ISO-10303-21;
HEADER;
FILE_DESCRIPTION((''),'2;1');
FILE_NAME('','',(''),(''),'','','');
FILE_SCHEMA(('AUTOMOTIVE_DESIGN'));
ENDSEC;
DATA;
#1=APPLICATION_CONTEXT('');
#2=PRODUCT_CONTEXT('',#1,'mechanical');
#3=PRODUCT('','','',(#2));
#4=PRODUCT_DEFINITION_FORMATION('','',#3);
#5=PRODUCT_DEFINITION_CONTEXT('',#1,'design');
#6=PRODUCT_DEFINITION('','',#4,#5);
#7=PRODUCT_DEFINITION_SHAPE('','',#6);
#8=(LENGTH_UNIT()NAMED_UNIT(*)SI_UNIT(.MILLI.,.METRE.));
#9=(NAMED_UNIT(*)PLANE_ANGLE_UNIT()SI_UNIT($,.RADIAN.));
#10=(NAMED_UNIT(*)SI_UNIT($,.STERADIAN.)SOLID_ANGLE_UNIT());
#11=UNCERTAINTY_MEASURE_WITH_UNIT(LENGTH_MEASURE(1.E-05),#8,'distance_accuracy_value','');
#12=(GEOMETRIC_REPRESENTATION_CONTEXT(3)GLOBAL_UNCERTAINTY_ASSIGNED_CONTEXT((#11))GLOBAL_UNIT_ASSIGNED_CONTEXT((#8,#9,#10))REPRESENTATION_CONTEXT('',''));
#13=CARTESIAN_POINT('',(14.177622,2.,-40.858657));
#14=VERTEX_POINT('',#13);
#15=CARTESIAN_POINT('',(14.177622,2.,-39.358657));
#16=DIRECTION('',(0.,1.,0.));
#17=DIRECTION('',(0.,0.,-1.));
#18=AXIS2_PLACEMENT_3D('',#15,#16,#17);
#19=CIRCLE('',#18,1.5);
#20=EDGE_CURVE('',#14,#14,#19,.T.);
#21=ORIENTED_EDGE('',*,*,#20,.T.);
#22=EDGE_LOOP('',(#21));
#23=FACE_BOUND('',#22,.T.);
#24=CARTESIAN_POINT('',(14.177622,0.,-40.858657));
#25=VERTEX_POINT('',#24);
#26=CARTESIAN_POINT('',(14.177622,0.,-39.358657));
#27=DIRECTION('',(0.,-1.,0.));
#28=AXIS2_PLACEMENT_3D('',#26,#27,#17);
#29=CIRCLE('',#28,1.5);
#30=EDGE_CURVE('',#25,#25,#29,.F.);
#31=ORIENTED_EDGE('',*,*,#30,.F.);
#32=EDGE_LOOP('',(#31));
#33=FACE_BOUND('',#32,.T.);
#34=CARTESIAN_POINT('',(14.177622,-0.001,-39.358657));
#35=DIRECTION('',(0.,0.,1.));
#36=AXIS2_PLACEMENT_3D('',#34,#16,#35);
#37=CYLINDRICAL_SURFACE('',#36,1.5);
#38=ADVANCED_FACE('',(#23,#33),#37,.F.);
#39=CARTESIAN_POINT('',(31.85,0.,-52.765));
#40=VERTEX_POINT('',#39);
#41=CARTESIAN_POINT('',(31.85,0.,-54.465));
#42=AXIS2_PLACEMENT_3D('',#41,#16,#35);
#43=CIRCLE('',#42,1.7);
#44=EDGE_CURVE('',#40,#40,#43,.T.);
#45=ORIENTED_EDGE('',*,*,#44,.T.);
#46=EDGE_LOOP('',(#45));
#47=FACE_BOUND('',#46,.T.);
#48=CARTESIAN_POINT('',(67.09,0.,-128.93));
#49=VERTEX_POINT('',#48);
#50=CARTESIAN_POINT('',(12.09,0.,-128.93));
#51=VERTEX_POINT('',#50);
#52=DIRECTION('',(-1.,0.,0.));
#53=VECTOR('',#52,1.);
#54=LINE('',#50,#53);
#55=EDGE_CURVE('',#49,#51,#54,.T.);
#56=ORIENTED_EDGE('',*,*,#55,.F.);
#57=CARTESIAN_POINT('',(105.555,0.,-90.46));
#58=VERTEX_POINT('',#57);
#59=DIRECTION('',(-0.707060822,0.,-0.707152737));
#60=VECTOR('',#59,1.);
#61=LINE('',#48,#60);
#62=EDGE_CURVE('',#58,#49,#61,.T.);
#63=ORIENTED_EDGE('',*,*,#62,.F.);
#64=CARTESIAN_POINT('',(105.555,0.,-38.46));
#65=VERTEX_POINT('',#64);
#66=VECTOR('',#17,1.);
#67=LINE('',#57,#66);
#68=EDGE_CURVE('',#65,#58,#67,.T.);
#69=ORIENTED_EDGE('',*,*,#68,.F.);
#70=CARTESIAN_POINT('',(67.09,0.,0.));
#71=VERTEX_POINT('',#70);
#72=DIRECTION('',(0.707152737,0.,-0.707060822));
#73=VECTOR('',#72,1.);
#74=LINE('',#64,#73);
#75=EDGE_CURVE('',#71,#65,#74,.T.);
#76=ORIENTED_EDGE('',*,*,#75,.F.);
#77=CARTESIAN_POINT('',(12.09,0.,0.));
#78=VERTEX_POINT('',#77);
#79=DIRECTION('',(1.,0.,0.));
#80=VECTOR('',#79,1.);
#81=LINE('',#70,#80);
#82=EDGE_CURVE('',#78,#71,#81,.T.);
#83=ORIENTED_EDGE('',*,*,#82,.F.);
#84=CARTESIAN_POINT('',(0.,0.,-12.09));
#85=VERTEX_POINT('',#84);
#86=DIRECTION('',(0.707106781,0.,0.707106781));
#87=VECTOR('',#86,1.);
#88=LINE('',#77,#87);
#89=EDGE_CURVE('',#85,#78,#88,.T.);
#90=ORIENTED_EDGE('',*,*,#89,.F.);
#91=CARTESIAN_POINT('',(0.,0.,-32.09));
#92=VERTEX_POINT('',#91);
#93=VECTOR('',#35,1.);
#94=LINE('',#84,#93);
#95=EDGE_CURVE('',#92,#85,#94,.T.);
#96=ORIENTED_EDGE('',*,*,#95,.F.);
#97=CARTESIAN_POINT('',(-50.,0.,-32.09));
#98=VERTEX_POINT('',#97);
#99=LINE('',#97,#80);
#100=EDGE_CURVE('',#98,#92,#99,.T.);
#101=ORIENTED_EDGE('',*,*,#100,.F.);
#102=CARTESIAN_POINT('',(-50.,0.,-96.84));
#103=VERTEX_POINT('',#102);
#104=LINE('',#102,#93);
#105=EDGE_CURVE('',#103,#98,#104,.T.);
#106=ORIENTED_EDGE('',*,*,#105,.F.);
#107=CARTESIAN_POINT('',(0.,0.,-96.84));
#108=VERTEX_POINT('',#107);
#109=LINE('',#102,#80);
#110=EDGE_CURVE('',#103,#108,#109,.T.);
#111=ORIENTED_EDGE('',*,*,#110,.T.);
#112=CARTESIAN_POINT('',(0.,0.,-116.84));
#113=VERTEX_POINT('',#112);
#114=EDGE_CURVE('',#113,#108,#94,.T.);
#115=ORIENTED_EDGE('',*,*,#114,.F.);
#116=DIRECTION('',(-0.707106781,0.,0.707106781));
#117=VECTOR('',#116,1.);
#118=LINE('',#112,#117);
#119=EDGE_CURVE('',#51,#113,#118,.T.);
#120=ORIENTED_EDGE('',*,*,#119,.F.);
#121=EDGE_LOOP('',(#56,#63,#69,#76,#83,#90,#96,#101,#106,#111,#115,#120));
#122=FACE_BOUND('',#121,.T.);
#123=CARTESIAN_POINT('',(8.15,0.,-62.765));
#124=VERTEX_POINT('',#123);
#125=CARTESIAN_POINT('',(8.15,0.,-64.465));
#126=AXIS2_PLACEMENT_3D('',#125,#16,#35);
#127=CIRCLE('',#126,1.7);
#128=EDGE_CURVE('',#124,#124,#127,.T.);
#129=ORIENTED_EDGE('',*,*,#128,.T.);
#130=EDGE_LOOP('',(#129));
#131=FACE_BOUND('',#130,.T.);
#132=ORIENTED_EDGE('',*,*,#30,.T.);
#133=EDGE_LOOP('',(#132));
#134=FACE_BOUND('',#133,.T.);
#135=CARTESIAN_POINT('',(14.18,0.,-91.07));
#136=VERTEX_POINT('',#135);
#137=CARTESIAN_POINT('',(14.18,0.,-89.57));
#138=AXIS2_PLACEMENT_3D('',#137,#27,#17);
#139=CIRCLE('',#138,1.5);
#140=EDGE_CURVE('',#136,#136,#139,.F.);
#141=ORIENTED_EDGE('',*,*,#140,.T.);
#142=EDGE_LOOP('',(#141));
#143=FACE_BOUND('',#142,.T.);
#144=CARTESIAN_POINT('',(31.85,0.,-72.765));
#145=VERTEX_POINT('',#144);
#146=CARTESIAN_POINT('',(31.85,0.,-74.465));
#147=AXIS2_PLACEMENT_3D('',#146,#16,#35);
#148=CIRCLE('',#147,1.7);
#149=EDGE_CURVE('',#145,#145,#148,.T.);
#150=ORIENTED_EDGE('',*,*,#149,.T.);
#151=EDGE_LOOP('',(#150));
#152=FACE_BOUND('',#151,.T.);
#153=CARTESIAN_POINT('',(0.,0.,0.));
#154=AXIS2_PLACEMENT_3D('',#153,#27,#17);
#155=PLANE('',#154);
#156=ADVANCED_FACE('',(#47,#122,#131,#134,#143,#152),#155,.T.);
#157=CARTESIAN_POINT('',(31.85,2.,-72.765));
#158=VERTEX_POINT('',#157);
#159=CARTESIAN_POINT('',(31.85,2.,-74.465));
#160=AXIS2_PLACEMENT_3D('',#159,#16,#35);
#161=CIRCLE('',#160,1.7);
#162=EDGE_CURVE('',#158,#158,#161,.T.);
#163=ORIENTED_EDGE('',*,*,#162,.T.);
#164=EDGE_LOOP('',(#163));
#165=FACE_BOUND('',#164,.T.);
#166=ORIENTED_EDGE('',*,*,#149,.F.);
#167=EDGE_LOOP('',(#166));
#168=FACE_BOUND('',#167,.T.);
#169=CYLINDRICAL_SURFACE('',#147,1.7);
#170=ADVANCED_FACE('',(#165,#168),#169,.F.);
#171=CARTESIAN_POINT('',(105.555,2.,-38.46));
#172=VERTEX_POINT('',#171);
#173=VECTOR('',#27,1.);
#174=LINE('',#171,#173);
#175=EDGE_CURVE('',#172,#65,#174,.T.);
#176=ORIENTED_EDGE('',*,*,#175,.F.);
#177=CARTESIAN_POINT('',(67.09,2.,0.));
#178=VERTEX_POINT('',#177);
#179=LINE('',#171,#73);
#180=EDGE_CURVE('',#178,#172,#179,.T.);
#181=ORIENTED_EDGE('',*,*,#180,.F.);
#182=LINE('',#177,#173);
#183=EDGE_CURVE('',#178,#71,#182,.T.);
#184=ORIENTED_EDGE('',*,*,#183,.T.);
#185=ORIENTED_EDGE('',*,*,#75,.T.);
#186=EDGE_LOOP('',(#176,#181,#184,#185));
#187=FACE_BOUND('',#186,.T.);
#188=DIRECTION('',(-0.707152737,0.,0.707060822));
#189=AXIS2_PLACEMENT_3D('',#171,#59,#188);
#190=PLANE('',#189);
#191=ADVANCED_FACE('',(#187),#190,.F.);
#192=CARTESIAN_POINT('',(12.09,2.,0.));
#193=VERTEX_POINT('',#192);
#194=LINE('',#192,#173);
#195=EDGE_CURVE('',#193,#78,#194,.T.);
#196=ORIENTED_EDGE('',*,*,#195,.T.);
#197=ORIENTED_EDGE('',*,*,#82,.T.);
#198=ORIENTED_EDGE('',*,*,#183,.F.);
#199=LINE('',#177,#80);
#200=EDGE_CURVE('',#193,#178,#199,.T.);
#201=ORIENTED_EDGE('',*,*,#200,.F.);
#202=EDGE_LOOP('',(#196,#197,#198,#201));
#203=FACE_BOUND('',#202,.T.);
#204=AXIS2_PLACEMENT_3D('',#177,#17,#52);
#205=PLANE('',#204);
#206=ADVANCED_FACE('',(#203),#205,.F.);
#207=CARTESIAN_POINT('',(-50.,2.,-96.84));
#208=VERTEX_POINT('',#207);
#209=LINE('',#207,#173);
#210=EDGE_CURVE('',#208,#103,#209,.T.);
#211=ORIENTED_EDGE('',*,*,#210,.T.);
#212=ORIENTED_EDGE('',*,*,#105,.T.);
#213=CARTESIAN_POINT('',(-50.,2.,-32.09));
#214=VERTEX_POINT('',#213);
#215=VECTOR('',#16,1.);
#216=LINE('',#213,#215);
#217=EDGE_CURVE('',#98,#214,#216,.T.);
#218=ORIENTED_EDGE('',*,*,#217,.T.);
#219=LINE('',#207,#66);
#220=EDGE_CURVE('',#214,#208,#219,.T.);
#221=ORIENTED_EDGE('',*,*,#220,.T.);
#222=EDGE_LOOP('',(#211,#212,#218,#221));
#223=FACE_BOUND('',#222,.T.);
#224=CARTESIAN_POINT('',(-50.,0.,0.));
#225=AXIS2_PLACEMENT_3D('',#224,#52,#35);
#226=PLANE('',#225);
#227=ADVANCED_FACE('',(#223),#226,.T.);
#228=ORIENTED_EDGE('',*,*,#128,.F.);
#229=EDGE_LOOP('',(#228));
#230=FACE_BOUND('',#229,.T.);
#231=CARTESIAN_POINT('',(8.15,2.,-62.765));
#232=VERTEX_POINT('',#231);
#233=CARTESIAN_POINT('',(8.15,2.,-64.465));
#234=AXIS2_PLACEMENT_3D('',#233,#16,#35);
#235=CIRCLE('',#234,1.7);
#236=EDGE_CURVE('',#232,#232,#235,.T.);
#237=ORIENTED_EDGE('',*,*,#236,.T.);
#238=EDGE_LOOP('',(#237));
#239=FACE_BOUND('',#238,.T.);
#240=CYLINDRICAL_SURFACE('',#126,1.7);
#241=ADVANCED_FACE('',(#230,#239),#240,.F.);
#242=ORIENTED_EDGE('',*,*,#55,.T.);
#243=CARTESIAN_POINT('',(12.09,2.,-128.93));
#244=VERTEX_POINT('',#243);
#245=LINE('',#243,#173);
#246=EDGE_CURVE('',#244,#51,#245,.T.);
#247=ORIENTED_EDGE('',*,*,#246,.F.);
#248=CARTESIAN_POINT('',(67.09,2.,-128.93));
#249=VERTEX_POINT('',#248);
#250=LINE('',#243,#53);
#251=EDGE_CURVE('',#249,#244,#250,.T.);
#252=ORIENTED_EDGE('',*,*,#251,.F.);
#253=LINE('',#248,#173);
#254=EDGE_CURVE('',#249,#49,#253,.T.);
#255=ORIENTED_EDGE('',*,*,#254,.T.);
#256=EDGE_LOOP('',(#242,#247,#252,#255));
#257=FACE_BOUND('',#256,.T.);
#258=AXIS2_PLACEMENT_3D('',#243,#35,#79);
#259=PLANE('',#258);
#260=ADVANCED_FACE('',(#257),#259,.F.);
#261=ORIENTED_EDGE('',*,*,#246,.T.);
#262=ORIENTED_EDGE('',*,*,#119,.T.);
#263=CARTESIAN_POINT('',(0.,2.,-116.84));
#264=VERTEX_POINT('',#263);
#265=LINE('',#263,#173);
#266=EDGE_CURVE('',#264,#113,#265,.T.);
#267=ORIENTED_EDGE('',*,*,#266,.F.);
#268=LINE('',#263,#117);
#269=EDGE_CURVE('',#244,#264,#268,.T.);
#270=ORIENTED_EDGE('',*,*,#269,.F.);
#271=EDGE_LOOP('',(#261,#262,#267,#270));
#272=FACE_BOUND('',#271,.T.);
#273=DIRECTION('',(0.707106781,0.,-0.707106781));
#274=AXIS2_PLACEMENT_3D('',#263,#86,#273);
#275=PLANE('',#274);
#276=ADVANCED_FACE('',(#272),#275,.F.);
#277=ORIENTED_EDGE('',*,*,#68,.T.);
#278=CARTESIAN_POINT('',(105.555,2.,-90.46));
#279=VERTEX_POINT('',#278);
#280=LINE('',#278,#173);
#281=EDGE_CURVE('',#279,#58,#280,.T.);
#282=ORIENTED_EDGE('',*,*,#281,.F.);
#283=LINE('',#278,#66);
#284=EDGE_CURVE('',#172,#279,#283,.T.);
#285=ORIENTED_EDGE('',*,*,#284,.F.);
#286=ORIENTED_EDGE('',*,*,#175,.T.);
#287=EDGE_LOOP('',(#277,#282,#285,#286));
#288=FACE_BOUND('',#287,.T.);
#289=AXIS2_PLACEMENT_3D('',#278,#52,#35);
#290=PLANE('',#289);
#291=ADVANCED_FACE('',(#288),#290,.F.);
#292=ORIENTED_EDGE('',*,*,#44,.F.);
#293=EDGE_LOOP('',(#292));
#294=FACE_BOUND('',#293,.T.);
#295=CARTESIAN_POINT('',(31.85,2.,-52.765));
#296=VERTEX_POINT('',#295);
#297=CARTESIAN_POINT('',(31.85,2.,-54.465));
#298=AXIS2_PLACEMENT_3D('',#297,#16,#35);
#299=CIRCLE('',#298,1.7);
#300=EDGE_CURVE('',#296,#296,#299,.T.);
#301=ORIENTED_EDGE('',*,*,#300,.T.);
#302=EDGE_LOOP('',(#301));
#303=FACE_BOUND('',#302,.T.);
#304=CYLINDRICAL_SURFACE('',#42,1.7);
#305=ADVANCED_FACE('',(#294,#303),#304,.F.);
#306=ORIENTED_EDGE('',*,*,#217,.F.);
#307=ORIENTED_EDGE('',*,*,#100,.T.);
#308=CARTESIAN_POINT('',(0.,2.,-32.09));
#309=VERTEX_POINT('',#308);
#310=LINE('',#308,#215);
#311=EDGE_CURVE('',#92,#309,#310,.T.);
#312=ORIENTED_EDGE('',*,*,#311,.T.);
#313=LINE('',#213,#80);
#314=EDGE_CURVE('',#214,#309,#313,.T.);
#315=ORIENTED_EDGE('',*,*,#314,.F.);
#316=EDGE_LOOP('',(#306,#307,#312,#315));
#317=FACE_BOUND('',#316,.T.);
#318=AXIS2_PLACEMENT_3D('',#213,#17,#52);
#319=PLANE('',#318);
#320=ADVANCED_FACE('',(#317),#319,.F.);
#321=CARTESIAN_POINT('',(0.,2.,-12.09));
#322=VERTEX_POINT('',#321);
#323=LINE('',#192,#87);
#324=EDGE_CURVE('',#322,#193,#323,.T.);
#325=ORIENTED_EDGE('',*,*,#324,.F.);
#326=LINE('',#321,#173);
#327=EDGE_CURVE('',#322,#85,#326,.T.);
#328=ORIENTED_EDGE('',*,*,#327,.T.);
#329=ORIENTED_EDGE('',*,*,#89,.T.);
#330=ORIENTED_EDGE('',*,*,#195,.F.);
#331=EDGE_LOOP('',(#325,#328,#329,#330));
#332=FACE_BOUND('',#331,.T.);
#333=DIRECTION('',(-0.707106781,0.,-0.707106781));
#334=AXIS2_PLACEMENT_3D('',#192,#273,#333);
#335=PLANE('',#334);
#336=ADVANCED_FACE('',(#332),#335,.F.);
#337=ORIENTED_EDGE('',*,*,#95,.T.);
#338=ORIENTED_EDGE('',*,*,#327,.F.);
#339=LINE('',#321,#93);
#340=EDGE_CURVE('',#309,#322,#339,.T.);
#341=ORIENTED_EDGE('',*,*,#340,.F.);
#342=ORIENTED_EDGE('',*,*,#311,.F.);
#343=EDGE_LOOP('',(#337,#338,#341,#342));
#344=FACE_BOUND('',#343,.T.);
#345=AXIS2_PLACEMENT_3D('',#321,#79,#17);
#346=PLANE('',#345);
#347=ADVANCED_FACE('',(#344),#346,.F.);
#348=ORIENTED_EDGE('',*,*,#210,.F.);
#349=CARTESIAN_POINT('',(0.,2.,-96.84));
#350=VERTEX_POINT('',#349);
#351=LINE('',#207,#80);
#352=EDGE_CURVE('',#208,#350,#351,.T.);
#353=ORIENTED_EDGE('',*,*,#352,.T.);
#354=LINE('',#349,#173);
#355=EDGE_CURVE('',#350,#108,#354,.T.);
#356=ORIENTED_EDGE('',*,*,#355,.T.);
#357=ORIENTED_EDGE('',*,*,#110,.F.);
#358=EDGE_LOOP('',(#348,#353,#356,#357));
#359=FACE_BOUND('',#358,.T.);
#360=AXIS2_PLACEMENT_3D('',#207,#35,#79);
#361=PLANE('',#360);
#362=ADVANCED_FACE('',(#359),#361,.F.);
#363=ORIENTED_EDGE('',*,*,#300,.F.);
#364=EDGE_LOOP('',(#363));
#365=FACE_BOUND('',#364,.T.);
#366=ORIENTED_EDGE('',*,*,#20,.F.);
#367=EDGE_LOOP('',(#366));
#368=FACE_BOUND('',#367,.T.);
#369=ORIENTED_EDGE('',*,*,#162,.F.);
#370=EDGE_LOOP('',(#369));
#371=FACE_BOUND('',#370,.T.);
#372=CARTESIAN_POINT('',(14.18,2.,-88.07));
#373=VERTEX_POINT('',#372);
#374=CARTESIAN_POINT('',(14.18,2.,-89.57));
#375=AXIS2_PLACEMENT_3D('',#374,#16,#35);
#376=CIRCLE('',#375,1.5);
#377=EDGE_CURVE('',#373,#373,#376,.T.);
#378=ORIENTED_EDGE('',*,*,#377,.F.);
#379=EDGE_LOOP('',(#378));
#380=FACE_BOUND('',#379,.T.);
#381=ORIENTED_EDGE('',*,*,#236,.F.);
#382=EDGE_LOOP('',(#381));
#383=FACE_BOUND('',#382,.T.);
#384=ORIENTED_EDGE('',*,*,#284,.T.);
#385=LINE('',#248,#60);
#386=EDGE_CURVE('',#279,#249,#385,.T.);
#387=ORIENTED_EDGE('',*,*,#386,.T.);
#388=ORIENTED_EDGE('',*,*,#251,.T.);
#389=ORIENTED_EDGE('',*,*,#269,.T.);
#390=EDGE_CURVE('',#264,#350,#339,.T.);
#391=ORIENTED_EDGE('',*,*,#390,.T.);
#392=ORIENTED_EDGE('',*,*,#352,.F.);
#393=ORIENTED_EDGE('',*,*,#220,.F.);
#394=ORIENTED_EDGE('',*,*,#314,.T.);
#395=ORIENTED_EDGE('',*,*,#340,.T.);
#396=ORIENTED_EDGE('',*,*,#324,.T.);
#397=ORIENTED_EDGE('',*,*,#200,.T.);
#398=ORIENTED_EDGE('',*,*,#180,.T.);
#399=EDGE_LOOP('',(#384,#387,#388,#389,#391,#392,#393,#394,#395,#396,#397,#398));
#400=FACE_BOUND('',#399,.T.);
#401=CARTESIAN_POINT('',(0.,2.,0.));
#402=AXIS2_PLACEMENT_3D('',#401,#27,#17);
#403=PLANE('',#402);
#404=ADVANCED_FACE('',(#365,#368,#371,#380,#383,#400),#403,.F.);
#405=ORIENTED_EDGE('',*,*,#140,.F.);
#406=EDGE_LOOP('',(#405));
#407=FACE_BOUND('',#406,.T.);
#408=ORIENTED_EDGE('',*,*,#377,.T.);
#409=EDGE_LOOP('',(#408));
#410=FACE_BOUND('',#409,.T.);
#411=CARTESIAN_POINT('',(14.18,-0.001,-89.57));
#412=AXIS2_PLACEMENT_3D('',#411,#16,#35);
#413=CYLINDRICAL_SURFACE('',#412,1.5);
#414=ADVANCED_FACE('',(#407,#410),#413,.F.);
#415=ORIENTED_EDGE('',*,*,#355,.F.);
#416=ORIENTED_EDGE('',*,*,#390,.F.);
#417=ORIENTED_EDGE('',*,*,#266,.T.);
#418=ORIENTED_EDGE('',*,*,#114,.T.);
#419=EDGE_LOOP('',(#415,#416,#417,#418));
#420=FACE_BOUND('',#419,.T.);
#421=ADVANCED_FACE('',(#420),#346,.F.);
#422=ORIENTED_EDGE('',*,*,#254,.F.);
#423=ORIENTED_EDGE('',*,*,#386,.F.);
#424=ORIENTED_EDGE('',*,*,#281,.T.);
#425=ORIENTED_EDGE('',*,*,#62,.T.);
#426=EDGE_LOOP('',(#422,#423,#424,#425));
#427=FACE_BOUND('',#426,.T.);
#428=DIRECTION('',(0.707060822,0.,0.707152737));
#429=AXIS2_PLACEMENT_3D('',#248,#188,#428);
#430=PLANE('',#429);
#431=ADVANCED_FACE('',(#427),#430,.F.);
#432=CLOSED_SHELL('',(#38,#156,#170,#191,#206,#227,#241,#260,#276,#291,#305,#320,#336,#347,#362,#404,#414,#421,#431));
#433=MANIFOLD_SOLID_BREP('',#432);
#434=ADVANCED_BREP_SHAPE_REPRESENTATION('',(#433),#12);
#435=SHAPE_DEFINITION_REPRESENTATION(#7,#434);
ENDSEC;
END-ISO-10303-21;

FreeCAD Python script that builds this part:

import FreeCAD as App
import Part
import Sketcher

V = App.Vector

doc = App.newDocument("Part")
body = doc.addObject("PartDesign::Body", "Body")

sketch1 = body.newObject("Sketcher::SketchObject", "Sketch")
sketch1.AttachmentSupport = (doc.getObject("XZ_Plane"), [""])
sketch1.MapMode = "FlatFace"
sketch1.addGeometry([
    Part.LineSegment(V(0, -117, 0), V(0, -12, 0)),
    Part.LineSegment(V(0, -12, 0), V(12, 0, 0)),
    Part.LineSegment(V(12, 0, 0), V(67, 0, 0)),
    Part.LineSegment(V(67, 0, 0), V(106, -38, 0)),
    Part.LineSegment(V(106, -38, 0), V(106, -90, 0)),
    Part.LineSegment(V(106, -90, 0), V(67, -129, 0)),
    Part.LineSegment(V(67, -129, 0), V(12, -129, 0)),
    Part.LineSegment(V(12, -129, 0), V(0, -117, 0)),
], False)
sketch1.addConstraint([
    Sketcher.Constraint("Coincident", 0, 2, 1, 1),
    Sketcher.Constraint("Coincident", 1, 2, 2, 1),
    Sketcher.Constraint("Coincident", 2, 2, 3, 1),
    Sketcher.Constraint("Coincident", 3, 2, 4, 1),
    Sketcher.Constraint("Coincident", 4, 2, 5, 1),
    Sketcher.Constraint("Coincident", 5, 2, 6, 1),
    Sketcher.Constraint("Coincident", 6, 2, 7, 1),
    Sketcher.Constraint("Coincident", 7, 2, 0, 1),
    Sketcher.Constraint("Vertical", 0),
    Sketcher.Constraint("Horizontal", 2),
    Sketcher.Constraint("Vertical", 4),
    Sketcher.Constraint("Horizontal", 6),
    Sketcher.Constraint("PointOnObject", 0, 2, -2),
    Sketcher.Constraint("PointOnObject", 1, 2, -1),
    Sketcher.Constraint("Perpendicular", 3, 5),
    Sketcher.Constraint("Perpendicular", 1, 7),
    Sketcher.Constraint("Vertical", 2, 2, 5, 2),
    Sketcher.Constraint("Vertical", 1, 2, 6, 2),
    Sketcher.Constraint("Equal", 1, 7),
    Sketcher.Constraint("DistanceX", 2, 1, 2, 2, 55.0),
    Sketcher.Constraint("DistanceY", 4, 2, 4, 1, 52.0),
    Sketcher.Constraint("DistanceY", 0, 1, 0, 2, 104.75),
    Sketcher.Constraint("DistanceY", 0, 2, -1, 1, 12.09),
    Sketcher.Constraint("DistanceY", 3, 2, -1, 1, 38.46),
])
pad1 = body.newObject("PartDesign::Pad", "Pad")
pad1.Profile = sketch1
pad1.Length = 2
pad1.Reversed = True

sketch2 = body.newObject("Sketcher::SketchObject", "Sketch001")
sketch2.AttachmentSupport = (doc.getObject("XZ_Plane"), [""])
sketch2.MapMode = "FlatFace"
sketch2.AttachmentOffset = App.Placement(V(0, 0, -2), App.Rotation())
sketch2.addGeometry([
    Part.Circle(V(8.2, -64.5, 0), V(0, 0, 1), 1.7),
    Part.Circle(V(31.9, -54.5, 0), V(0, 0, 1), 1.7),
    Part.Circle(V(31.9, -74.5, 0), V(0, 0, 1), 1.7),
], False)
sketch2.addConstraint([
    Sketcher.Constraint("Equal", 0, 1),
    Sketcher.Constraint("Equal", 1, 2),
    Sketcher.Constraint("Vertical", 1, 3, 2, 3),
    Sketcher.Constraint("Diameter", 0, 3.4),
    Sketcher.Constraint("DistanceY", 0, 3, 1, 3, 10.0),
    Sketcher.Constraint("DistanceY", 2, 3, 1, 3, 20.0),
    Sketcher.Constraint("DistanceX", 0, 3, 1, 3, 23.7),
    Sketcher.Constraint("DistanceX", -1, 1, 0, 3, 8.15),
    Sketcher.Constraint("DistanceY", 0, 3, -1, 1, 64.465),
])
pocket1 = body.newObject("PartDesign::Pocket", "Pocket")
pocket1.Profile = sketch2
pocket1.Type = "ThroughAll"
pocket1.Reversed = True

sketch3 = body.newObject("Sketcher::SketchObject", "Sketch002")
sketch3.AttachmentSupport = (doc.getObject("XZ_Plane"), [""])
sketch3.MapMode = "FlatFace"
sketch3.AttachmentOffset = App.Placement(V(0, 0, -2), App.Rotation())
sketch3.addGeometry(Part.Circle(V(14.2, -89.6, 0), V(0, 0, 1), 1.5), False)
sketch3.addConstraint([
    Sketcher.Constraint("Diameter", 0, 3.0),
    Sketcher.Constraint("DistanceX", -1, 1, 0, 3, 14.18),
    Sketcher.Constraint("DistanceY", 0, 3, -1, 1, 89.57),
])
pocket2 = body.newObject("PartDesign::Pocket", "Pocket001")
pocket2.Profile = sketch3
pocket2.Type = "UpToFirst"
pocket2.Reversed = True

sketch4 = body.newObject("Sketcher::SketchObject", "Sketch003")
sketch4.AttachmentSupport = (doc.getObject("XZ_Plane"), [""])
sketch4.MapMode = "FlatFace"
sketch4.AttachmentOffset = App.Placement(V(0, 0, -2), App.Rotation())
sketch4.addGeometry(Part.Circle(V(14.2, -39.4, 0), V(0, 0, 1), 1.5), False)
sketch4.addConstraint([
    Sketcher.Constraint("Diameter", 0, 3.0),
    Sketcher.Constraint("DistanceX", -1, 1, 0, 3, 14.177622),
    Sketcher.Constraint("DistanceY", 0, 3, -1, 1, 39.358657),
])
pocket3 = body.newObject("PartDesign::Pocket", "Pocket002")
pocket3.Profile = sketch4
pocket3.Type = "UpToFirst"
pocket3.Reversed = True

sketch5 = body.newObject("Sketcher::SketchObject", "Sketch004")
sketch5.AttachmentSupport = (doc.getObject("YZ_Plane"), [""])
sketch5.MapMode = "FlatFace"
sketch5.addGeometry([
    Part.LineSegment(V(2, -96.8, 0), V(0, -96.8, 0)),
    Part.LineSegment(V(0, -96.8, 0), V(0, -32.1, 0)),
    Part.LineSegment(V(0, -32.1, 0), V(2, -32.1, 0)),
    Part.LineSegment(V(2, -32.1, 0), V(2, -96.8, 0)),
], False)
sketch5.addConstraint([
    Sketcher.Constraint("Coincident", 0, 2, 1, 1),
    Sketcher.Constraint("Coincident", 1, 2, 2, 1),
    Sketcher.Constraint("Coincident", 2, 2, 3, 1),
    Sketcher.Constraint("Coincident", 3, 2, 0, 1),
    Sketcher.Constraint("Horizontal", 0),
    Sketcher.Constraint("Vertical", 1),
    Sketcher.Constraint("Horizontal", 2),
    Sketcher.Constraint("Vertical", 3),
    Sketcher.Constraint("PointOnObject", 0, 2, -2),
    Sketcher.Constraint("DistanceX", 0, 2, 0, 1, 2.0),
    Sketcher.Constraint("DistanceY", 1, 1, 1, 2, 64.75),
    Sketcher.Constraint("DistanceY", 0, 2, -1, 1, 96.84),
])
pad2 = body.newObject("PartDesign::Pad", "Pad001")
pad2.Profile = sketch5
pad2.Length = 50
pad2.Reversed = True

doc.recompute()
